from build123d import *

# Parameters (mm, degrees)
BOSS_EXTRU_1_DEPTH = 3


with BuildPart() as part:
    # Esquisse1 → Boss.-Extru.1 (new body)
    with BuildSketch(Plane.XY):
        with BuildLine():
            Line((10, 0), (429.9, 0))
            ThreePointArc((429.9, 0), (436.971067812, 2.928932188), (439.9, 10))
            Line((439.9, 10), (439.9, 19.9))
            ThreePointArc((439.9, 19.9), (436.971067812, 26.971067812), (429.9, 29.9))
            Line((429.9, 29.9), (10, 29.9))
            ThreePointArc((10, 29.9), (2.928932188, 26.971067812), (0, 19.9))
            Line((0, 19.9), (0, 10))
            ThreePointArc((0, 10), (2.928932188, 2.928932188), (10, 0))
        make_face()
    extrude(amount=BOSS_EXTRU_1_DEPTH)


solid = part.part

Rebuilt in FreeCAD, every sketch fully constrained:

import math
import FreeCAD as App
import Part
import Sketcher

V = App.Vector
Q = App.Units.Quantity

doc = App.newDocument("Part")
body = doc.addObject("PartDesign::Body", "Body")

# Sketch on XY plane
sketch1 = body.newObject("Sketcher::SketchObject", "Sketch")
sketch1.AttachmentSupport = (doc.getObject("XY_Plane"), [""])
sketch1.MapMode = "FlatFace"
sketch1.addGeometry(Part.LineSegment(V(10, 0, 0), V(430, 0, 0)), False)
sketch1.addGeometry(Part.ArcOfCircle(Part.Circle(V(430, 10, 0), V(0, 0, 1), 10), math.radians(-90), math.radians(0)), False)
sketch1.addGeometry(Part.LineSegment(V(440, 10, 0), V(440, 20, 0)), False)
sketch1.addGeometry(Part.ArcOfCircle(Part.Circle(V(430, 20, 0), V(0, 0, 1), 10), math.radians(0), math.radians(90)), False)
sketch1.addGeometry(Part.LineSegment(V(430, 30, 0), V(10, 30, 0)), False)
sketch1.addGeometry(Part.ArcOfCircle(Part.Circle(V(10, 20, 0), V(0, 0, 1), 10), math.radians(90), math.radians(180)), False)
sketch1.addGeometry(Part.LineSegment(V(0, 20, 0), V(0, 10, 0)), False)
sketch1.addGeometry(Part.ArcOfCircle(Part.Circle(V(10, 10, 0), V(0, 0, 1), 10), math.radians(180), math.radians(270)), False)
sketch1.addConstraint(Sketcher.Constraint("Tangent", 0, 2, 1, 1))
sketch1.addConstraint(Sketcher.Constraint("Tangent", 1, 2, 2, 1))
sketch1.addConstraint(Sketcher.Constraint("Tangent", 2, 2, 3, 1))
sketch1.addConstraint(Sketcher.Constraint("Tangent", 3, 2, 4, 1))
sketch1.addConstraint(Sketcher.Constraint("Tangent", 4, 2, 5, 1))
sketch1.addConstraint(Sketcher.Constraint("Tangent", 5, 2, 6, 1))
sketch1.addConstraint(Sketcher.Constraint("Tangent", 6, 2, 7, 1))
sketch1.addConstraint(Sketcher.Constraint("Tangent", 7, 2, 0, 1))
sketch1.addConstraint(Sketcher.Constraint("Horizontal", 0))
sketch1.addConstraint(Sketcher.Constraint("Vertical", 2))
sketch1.addConstraint(Sketcher.Constraint("Horizontal", 4))
sketch1.addConstraint(Sketcher.Constraint("Vertical", 6))
sketch1.addConstraint(Sketcher.Constraint("Equal", 1, 3))
sketch1.addConstraint(Sketcher.Constraint("Equal", 3, 5))
sketch1.addConstraint(Sketcher.Constraint("Equal", 5, 7))
sketch1.addConstraint(Sketcher.Constraint("PointOnObject", 0, 2, -1))
sketch1.addConstraint(Sketcher.Constraint("PointOnObject", 5, 2, -2))
sketch1.addConstraint(Sketcher.Constraint("Radius", 1, Q("10 mm")))
sketch1.addConstraint(Sketcher.Constraint("DistanceX", 0, 1, 0, 2, Q("419.9 mm")))
sketch1.addConstraint(Sketcher.Constraint("DistanceY", 2, 1, 2, 2, Q("9.9 mm")))
pad1 = body.newObject("PartDesign::Pad", "Pad")
pad1.Profile = sketch1
pad1.Length = 3

doc.recompute()
